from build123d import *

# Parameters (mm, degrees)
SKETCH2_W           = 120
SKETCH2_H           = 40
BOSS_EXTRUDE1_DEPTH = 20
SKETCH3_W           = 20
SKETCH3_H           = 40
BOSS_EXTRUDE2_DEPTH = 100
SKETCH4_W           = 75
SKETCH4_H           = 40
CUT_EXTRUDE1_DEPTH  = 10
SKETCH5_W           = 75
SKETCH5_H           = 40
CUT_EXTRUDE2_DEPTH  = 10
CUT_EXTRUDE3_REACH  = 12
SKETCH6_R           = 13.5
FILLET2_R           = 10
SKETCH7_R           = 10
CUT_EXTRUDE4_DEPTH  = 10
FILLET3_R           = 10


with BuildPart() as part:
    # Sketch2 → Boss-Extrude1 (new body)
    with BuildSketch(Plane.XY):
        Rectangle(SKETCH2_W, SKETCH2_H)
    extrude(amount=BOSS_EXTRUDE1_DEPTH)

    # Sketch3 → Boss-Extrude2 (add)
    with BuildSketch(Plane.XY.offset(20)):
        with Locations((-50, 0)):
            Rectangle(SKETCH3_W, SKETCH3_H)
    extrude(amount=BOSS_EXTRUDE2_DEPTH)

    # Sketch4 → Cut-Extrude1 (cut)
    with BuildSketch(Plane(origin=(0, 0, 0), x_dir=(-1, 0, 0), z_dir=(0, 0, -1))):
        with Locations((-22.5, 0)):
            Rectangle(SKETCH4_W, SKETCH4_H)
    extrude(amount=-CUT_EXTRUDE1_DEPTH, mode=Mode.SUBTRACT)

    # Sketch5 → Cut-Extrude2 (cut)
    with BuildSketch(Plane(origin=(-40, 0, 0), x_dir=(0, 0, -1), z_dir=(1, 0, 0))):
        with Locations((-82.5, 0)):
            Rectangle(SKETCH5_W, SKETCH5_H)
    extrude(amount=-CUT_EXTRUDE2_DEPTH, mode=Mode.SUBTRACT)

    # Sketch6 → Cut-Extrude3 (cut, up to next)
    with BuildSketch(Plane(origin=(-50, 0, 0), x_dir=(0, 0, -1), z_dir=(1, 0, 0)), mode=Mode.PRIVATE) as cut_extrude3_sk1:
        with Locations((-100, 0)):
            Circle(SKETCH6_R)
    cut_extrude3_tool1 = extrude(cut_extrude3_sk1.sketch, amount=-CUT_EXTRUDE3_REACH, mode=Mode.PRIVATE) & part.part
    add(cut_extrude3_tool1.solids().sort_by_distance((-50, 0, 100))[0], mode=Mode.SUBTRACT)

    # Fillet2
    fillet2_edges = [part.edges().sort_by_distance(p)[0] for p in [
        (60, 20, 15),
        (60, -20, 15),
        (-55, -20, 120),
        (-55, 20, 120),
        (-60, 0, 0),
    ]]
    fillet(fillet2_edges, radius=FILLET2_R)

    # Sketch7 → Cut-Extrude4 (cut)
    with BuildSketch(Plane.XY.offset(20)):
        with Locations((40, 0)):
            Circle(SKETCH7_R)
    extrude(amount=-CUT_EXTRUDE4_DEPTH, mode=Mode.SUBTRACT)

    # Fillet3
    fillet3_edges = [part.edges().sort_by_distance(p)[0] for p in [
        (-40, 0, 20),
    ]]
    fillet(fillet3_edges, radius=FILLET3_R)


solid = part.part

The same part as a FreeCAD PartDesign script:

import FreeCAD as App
import Part
import Sketcher

V = App.Vector
Q = App.Units.Quantity


def edges_at(feature, points):
    """Names of the edges that pass closest to the given points."""
    edges = feature.Shape.Edges
    near = lambda p: min(range(len(edges)), key=lambda i: edges[i].distToShape(Part.Vertex(*p))[0])
    return sorted({f"Edge{near(p) + 1}" for p in points})


def add_polygon(sketch, points):
    """Adds a closed chain of lines whose ends are joined by coincident constraints."""
    first, n = sketch.GeometryCount, len(points)
    for a, b in zip(points, points[1:] + points[:1]):
        sketch.addGeometry(Part.LineSegment(App.Vector(*a, 0), App.Vector(*b, 0)), False)
    for i in range(n):
        sketch.addConstraint(Sketcher.Constraint("Coincident", first + i, 2, first + (i + 1) % n, 1))

doc = App.newDocument("Part")
body = doc.addObject("PartDesign::Body", "Body")

# Sketch on XY plane
sketch1 = doc.addObject("Sketcher::SketchObject", "Sketch")
body.addObject(sketch1)
sketch1.AttachmentSupport = (doc.XY_Plane, [""])
sketch1.MapMode = "FlatFace"
add_polygon(sketch1, [(-60, 20), (-60, -20), (60, -20), (60, 20)])  # lines 0-3
sketch1.addConstraint([
    Sketcher.Constraint("Vertical", 0),
    Sketcher.Constraint("Horizontal", 1),
    Sketcher.Constraint("Vertical", 2),
    Sketcher.Constraint("Horizontal", 3),
    Sketcher.Constraint("Symmetric", 0, 2, 2, 2, -1, 1),
    Sketcher.Constraint("DistanceX", 1, 1, 1, 2, Q("120 mm")),
    Sketcher.Constraint("DistanceY", 0, 2, 0, 1, Q("40 mm")),
])
pad1 = doc.addObject("PartDesign::Pad", "Pad")
body.addObject(pad1)
pad1.Profile = sketch1
pad1.Length = 20

# Sketch on XY plane
sketch2 = doc.addObject("Sketcher::SketchObject", "Sketch001")
body.addObject(sketch2)
sketch2.AttachmentSupport = (doc.XY_Plane, [""])
sketch2.MapMode = "FlatFace"
sketch2.AttachmentOffset = App.Placement(V(0, 0, 20), App.Rotation())
add_polygon(sketch2, [(-60, 20), (-60, -20), (-40, -20), (-40, 20)])  # lines 0-3
sketch2.addConstraint([
    Sketcher.Constraint("Vertical", 0),
    Sketcher.Constraint("Horizontal", 1),
    Sketcher.Constraint("Vertical", 2),
    Sketcher.Constraint("Horizontal", 3),
    Sketcher.Constraint("DistanceX", 1, 1, 1, 2, Q("20 mm")),
    Sketcher.Constraint("DistanceY", 0, 2, 0, 1, Q("40 mm")),
    Sketcher.Constraint("DistanceX", 0, 2, -1, 1, Q("60 mm")),
    Sketcher.Constraint("DistanceY", 0, 2, -1, 1, Q("20 mm")),
])
pad2 = doc.addObject("PartDesign::Pad", "Pad001")
body.addObject(pad2)
pad2.Profile = sketch2
pad2.Length = 100

# Sketch on XY plane
sketch3 = doc.addObject("Sketcher::SketchObject", "Sketch002")
body.addObject(sketch3)
sketch3.AttachmentSupport = (doc.XY_Plane, [""])
sketch3.MapMode = "FlatFace"
add_polygon(sketch3, [(60, 20), (60, -20), (-15, -20), (-15, 20)])  # lines 0-3
sketch3.addConstraint([
    Sketcher.Constraint("Vertical", 0),
    Sketcher.Constraint("Horizontal", 1),
    Sketcher.Constraint("Vertical", 2),
    Sketcher.Constraint("Horizontal", 3),
    Sketcher.Constraint("DistanceX", 1, 2, 1, 1, Q("75 mm")),
    Sketcher.Constraint("DistanceY", 0, 2, 0, 1, Q("40 mm")),
    Sketcher.Constraint("DistanceX", -1, 1, 0, 2, Q("60 mm")),
    Sketcher.Constraint("DistanceY", 0, 2, -1, 1, Q("20 mm")),
])
pocket1 = doc.addObject("PartDesign::Pocket", "Pocket")
body.addObject(pocket1)
pocket1.Profile = sketch3
pocket1.Length = 10
pocket1.Reversed = True

# Sketch on YZ plane
sketch4 = doc.addObject("Sketcher::SketchObject", "Sketch003")
body.addObject(sketch4)
sketch4.AttachmentSupport = (doc.YZ_Plane, [""])
sketch4.MapMode = "FlatFace"
sketch4.AttachmentOffset = App.Placement(V(0, 0, -40), App.Rotation())
add_polygon(sketch4, [(20, 120), (-20, 120), (-20, 45), (20, 45)])  # lines 0-3
sketch4.addConstraint([
    Sketcher.Constraint("Horizontal", 0),
    Sketcher.Constraint("Vertical", 1),
    Sketcher.Constraint("Horizontal", 2),
    Sketcher.Constraint("Vertical", 3),
    Sketcher.Constraint("DistanceX", 0, 2, 0, 1, Q("40 mm")),
    Sketcher.Constraint("DistanceY", 1, 2, 1, 1, Q("75 mm")),
    Sketcher.Constraint("DistanceX", 0, 2, -1, 1, Q("20 mm")),
    Sketcher.Constraint("DistanceY", -1, 1, 0, 2, Q("120 mm")),
])
pocket2 = doc.addObject("PartDesign::Pocket", "Pocket001")
body.addObject(pocket2)
pocket2.Profile = sketch4
pocket2.Length = 10

# Sketch on YZ plane
sketch5 = doc.addObject("Sketcher::SketchObject", "Sketch004")
body.addObject(sketch5)
sketch5.AttachmentSupport = (doc.YZ_Plane, [""])
sketch5.MapMode = "FlatFace"
sketch5.AttachmentOffset = App.Placement(V(0, 0, -50), App.Rotation())
sketch5.addGeometry(Part.Circle(V(0, 100, 0), V(0, 0, 1), 13.5), False)
sketch5.addConstraint([
    Sketcher.Constraint("PointOnObject", 0, 3, -2),
    Sketcher.Constraint("Diameter", 0, Q("27 mm")),
    Sketcher.Constraint("DistanceY", -1, 1, 0, 3, Q("100 mm")),
])
pocket3 = doc.addObject("PartDesign::Pocket", "Pocket002")
body.addObject(pocket3)
pocket3.Profile = sketch5
pocket3.Type = "UpToFirst"
doc.recompute()

fillet = doc.addObject("PartDesign::Fillet", "Fillet")
body.addObject(fillet)
fillet.Base = (pocket3, edges_at(pocket3, [
    (60, 20, 15),
    (60, -20, 15),
    (-55, -20, 120),
    (-55, 20, 120),
    (-60, 0, 0),
]))
fillet.Radius = 10

# Sketch on XY plane
sketch6 = doc.addObject("Sketcher::SketchObject", "Sketch005")
body.addObject(sketch6)
sketch6.AttachmentSupport = (doc.XY_Plane, [""])
sketch6.MapMode = "FlatFace"
sketch6.AttachmentOffset = App.Placement(V(0, 0, 20), App.Rotation())
sketch6.addGeometry(Part.Circle(V(40, 0, 0), V(0, 0, 1), 10), False)
sketch6.addConstraint([
    Sketcher.Constraint("PointOnObject", 0, 3, -1),
    Sketcher.Constraint("Diameter", 0, Q("20 mm")),
    Sketcher.Constraint("DistanceX", -1, 1, 0, 3, Q("40 mm")),
])
pocket4 = doc.addObject("PartDesign::Pocket", "Pocket003")
body.addObject(pocket4)
pocket4.Profile = sketch6
pocket4.Length = 10
doc.recompute()

fillet2 = doc.addObject("PartDesign::Fillet", "Fillet001")
body.addObject(fillet2)
fillet2.Base = (pocket4, edges_at(pocket4, [(-40, 0, 20)]))
fillet2.Radius = 10

doc.recompute()
